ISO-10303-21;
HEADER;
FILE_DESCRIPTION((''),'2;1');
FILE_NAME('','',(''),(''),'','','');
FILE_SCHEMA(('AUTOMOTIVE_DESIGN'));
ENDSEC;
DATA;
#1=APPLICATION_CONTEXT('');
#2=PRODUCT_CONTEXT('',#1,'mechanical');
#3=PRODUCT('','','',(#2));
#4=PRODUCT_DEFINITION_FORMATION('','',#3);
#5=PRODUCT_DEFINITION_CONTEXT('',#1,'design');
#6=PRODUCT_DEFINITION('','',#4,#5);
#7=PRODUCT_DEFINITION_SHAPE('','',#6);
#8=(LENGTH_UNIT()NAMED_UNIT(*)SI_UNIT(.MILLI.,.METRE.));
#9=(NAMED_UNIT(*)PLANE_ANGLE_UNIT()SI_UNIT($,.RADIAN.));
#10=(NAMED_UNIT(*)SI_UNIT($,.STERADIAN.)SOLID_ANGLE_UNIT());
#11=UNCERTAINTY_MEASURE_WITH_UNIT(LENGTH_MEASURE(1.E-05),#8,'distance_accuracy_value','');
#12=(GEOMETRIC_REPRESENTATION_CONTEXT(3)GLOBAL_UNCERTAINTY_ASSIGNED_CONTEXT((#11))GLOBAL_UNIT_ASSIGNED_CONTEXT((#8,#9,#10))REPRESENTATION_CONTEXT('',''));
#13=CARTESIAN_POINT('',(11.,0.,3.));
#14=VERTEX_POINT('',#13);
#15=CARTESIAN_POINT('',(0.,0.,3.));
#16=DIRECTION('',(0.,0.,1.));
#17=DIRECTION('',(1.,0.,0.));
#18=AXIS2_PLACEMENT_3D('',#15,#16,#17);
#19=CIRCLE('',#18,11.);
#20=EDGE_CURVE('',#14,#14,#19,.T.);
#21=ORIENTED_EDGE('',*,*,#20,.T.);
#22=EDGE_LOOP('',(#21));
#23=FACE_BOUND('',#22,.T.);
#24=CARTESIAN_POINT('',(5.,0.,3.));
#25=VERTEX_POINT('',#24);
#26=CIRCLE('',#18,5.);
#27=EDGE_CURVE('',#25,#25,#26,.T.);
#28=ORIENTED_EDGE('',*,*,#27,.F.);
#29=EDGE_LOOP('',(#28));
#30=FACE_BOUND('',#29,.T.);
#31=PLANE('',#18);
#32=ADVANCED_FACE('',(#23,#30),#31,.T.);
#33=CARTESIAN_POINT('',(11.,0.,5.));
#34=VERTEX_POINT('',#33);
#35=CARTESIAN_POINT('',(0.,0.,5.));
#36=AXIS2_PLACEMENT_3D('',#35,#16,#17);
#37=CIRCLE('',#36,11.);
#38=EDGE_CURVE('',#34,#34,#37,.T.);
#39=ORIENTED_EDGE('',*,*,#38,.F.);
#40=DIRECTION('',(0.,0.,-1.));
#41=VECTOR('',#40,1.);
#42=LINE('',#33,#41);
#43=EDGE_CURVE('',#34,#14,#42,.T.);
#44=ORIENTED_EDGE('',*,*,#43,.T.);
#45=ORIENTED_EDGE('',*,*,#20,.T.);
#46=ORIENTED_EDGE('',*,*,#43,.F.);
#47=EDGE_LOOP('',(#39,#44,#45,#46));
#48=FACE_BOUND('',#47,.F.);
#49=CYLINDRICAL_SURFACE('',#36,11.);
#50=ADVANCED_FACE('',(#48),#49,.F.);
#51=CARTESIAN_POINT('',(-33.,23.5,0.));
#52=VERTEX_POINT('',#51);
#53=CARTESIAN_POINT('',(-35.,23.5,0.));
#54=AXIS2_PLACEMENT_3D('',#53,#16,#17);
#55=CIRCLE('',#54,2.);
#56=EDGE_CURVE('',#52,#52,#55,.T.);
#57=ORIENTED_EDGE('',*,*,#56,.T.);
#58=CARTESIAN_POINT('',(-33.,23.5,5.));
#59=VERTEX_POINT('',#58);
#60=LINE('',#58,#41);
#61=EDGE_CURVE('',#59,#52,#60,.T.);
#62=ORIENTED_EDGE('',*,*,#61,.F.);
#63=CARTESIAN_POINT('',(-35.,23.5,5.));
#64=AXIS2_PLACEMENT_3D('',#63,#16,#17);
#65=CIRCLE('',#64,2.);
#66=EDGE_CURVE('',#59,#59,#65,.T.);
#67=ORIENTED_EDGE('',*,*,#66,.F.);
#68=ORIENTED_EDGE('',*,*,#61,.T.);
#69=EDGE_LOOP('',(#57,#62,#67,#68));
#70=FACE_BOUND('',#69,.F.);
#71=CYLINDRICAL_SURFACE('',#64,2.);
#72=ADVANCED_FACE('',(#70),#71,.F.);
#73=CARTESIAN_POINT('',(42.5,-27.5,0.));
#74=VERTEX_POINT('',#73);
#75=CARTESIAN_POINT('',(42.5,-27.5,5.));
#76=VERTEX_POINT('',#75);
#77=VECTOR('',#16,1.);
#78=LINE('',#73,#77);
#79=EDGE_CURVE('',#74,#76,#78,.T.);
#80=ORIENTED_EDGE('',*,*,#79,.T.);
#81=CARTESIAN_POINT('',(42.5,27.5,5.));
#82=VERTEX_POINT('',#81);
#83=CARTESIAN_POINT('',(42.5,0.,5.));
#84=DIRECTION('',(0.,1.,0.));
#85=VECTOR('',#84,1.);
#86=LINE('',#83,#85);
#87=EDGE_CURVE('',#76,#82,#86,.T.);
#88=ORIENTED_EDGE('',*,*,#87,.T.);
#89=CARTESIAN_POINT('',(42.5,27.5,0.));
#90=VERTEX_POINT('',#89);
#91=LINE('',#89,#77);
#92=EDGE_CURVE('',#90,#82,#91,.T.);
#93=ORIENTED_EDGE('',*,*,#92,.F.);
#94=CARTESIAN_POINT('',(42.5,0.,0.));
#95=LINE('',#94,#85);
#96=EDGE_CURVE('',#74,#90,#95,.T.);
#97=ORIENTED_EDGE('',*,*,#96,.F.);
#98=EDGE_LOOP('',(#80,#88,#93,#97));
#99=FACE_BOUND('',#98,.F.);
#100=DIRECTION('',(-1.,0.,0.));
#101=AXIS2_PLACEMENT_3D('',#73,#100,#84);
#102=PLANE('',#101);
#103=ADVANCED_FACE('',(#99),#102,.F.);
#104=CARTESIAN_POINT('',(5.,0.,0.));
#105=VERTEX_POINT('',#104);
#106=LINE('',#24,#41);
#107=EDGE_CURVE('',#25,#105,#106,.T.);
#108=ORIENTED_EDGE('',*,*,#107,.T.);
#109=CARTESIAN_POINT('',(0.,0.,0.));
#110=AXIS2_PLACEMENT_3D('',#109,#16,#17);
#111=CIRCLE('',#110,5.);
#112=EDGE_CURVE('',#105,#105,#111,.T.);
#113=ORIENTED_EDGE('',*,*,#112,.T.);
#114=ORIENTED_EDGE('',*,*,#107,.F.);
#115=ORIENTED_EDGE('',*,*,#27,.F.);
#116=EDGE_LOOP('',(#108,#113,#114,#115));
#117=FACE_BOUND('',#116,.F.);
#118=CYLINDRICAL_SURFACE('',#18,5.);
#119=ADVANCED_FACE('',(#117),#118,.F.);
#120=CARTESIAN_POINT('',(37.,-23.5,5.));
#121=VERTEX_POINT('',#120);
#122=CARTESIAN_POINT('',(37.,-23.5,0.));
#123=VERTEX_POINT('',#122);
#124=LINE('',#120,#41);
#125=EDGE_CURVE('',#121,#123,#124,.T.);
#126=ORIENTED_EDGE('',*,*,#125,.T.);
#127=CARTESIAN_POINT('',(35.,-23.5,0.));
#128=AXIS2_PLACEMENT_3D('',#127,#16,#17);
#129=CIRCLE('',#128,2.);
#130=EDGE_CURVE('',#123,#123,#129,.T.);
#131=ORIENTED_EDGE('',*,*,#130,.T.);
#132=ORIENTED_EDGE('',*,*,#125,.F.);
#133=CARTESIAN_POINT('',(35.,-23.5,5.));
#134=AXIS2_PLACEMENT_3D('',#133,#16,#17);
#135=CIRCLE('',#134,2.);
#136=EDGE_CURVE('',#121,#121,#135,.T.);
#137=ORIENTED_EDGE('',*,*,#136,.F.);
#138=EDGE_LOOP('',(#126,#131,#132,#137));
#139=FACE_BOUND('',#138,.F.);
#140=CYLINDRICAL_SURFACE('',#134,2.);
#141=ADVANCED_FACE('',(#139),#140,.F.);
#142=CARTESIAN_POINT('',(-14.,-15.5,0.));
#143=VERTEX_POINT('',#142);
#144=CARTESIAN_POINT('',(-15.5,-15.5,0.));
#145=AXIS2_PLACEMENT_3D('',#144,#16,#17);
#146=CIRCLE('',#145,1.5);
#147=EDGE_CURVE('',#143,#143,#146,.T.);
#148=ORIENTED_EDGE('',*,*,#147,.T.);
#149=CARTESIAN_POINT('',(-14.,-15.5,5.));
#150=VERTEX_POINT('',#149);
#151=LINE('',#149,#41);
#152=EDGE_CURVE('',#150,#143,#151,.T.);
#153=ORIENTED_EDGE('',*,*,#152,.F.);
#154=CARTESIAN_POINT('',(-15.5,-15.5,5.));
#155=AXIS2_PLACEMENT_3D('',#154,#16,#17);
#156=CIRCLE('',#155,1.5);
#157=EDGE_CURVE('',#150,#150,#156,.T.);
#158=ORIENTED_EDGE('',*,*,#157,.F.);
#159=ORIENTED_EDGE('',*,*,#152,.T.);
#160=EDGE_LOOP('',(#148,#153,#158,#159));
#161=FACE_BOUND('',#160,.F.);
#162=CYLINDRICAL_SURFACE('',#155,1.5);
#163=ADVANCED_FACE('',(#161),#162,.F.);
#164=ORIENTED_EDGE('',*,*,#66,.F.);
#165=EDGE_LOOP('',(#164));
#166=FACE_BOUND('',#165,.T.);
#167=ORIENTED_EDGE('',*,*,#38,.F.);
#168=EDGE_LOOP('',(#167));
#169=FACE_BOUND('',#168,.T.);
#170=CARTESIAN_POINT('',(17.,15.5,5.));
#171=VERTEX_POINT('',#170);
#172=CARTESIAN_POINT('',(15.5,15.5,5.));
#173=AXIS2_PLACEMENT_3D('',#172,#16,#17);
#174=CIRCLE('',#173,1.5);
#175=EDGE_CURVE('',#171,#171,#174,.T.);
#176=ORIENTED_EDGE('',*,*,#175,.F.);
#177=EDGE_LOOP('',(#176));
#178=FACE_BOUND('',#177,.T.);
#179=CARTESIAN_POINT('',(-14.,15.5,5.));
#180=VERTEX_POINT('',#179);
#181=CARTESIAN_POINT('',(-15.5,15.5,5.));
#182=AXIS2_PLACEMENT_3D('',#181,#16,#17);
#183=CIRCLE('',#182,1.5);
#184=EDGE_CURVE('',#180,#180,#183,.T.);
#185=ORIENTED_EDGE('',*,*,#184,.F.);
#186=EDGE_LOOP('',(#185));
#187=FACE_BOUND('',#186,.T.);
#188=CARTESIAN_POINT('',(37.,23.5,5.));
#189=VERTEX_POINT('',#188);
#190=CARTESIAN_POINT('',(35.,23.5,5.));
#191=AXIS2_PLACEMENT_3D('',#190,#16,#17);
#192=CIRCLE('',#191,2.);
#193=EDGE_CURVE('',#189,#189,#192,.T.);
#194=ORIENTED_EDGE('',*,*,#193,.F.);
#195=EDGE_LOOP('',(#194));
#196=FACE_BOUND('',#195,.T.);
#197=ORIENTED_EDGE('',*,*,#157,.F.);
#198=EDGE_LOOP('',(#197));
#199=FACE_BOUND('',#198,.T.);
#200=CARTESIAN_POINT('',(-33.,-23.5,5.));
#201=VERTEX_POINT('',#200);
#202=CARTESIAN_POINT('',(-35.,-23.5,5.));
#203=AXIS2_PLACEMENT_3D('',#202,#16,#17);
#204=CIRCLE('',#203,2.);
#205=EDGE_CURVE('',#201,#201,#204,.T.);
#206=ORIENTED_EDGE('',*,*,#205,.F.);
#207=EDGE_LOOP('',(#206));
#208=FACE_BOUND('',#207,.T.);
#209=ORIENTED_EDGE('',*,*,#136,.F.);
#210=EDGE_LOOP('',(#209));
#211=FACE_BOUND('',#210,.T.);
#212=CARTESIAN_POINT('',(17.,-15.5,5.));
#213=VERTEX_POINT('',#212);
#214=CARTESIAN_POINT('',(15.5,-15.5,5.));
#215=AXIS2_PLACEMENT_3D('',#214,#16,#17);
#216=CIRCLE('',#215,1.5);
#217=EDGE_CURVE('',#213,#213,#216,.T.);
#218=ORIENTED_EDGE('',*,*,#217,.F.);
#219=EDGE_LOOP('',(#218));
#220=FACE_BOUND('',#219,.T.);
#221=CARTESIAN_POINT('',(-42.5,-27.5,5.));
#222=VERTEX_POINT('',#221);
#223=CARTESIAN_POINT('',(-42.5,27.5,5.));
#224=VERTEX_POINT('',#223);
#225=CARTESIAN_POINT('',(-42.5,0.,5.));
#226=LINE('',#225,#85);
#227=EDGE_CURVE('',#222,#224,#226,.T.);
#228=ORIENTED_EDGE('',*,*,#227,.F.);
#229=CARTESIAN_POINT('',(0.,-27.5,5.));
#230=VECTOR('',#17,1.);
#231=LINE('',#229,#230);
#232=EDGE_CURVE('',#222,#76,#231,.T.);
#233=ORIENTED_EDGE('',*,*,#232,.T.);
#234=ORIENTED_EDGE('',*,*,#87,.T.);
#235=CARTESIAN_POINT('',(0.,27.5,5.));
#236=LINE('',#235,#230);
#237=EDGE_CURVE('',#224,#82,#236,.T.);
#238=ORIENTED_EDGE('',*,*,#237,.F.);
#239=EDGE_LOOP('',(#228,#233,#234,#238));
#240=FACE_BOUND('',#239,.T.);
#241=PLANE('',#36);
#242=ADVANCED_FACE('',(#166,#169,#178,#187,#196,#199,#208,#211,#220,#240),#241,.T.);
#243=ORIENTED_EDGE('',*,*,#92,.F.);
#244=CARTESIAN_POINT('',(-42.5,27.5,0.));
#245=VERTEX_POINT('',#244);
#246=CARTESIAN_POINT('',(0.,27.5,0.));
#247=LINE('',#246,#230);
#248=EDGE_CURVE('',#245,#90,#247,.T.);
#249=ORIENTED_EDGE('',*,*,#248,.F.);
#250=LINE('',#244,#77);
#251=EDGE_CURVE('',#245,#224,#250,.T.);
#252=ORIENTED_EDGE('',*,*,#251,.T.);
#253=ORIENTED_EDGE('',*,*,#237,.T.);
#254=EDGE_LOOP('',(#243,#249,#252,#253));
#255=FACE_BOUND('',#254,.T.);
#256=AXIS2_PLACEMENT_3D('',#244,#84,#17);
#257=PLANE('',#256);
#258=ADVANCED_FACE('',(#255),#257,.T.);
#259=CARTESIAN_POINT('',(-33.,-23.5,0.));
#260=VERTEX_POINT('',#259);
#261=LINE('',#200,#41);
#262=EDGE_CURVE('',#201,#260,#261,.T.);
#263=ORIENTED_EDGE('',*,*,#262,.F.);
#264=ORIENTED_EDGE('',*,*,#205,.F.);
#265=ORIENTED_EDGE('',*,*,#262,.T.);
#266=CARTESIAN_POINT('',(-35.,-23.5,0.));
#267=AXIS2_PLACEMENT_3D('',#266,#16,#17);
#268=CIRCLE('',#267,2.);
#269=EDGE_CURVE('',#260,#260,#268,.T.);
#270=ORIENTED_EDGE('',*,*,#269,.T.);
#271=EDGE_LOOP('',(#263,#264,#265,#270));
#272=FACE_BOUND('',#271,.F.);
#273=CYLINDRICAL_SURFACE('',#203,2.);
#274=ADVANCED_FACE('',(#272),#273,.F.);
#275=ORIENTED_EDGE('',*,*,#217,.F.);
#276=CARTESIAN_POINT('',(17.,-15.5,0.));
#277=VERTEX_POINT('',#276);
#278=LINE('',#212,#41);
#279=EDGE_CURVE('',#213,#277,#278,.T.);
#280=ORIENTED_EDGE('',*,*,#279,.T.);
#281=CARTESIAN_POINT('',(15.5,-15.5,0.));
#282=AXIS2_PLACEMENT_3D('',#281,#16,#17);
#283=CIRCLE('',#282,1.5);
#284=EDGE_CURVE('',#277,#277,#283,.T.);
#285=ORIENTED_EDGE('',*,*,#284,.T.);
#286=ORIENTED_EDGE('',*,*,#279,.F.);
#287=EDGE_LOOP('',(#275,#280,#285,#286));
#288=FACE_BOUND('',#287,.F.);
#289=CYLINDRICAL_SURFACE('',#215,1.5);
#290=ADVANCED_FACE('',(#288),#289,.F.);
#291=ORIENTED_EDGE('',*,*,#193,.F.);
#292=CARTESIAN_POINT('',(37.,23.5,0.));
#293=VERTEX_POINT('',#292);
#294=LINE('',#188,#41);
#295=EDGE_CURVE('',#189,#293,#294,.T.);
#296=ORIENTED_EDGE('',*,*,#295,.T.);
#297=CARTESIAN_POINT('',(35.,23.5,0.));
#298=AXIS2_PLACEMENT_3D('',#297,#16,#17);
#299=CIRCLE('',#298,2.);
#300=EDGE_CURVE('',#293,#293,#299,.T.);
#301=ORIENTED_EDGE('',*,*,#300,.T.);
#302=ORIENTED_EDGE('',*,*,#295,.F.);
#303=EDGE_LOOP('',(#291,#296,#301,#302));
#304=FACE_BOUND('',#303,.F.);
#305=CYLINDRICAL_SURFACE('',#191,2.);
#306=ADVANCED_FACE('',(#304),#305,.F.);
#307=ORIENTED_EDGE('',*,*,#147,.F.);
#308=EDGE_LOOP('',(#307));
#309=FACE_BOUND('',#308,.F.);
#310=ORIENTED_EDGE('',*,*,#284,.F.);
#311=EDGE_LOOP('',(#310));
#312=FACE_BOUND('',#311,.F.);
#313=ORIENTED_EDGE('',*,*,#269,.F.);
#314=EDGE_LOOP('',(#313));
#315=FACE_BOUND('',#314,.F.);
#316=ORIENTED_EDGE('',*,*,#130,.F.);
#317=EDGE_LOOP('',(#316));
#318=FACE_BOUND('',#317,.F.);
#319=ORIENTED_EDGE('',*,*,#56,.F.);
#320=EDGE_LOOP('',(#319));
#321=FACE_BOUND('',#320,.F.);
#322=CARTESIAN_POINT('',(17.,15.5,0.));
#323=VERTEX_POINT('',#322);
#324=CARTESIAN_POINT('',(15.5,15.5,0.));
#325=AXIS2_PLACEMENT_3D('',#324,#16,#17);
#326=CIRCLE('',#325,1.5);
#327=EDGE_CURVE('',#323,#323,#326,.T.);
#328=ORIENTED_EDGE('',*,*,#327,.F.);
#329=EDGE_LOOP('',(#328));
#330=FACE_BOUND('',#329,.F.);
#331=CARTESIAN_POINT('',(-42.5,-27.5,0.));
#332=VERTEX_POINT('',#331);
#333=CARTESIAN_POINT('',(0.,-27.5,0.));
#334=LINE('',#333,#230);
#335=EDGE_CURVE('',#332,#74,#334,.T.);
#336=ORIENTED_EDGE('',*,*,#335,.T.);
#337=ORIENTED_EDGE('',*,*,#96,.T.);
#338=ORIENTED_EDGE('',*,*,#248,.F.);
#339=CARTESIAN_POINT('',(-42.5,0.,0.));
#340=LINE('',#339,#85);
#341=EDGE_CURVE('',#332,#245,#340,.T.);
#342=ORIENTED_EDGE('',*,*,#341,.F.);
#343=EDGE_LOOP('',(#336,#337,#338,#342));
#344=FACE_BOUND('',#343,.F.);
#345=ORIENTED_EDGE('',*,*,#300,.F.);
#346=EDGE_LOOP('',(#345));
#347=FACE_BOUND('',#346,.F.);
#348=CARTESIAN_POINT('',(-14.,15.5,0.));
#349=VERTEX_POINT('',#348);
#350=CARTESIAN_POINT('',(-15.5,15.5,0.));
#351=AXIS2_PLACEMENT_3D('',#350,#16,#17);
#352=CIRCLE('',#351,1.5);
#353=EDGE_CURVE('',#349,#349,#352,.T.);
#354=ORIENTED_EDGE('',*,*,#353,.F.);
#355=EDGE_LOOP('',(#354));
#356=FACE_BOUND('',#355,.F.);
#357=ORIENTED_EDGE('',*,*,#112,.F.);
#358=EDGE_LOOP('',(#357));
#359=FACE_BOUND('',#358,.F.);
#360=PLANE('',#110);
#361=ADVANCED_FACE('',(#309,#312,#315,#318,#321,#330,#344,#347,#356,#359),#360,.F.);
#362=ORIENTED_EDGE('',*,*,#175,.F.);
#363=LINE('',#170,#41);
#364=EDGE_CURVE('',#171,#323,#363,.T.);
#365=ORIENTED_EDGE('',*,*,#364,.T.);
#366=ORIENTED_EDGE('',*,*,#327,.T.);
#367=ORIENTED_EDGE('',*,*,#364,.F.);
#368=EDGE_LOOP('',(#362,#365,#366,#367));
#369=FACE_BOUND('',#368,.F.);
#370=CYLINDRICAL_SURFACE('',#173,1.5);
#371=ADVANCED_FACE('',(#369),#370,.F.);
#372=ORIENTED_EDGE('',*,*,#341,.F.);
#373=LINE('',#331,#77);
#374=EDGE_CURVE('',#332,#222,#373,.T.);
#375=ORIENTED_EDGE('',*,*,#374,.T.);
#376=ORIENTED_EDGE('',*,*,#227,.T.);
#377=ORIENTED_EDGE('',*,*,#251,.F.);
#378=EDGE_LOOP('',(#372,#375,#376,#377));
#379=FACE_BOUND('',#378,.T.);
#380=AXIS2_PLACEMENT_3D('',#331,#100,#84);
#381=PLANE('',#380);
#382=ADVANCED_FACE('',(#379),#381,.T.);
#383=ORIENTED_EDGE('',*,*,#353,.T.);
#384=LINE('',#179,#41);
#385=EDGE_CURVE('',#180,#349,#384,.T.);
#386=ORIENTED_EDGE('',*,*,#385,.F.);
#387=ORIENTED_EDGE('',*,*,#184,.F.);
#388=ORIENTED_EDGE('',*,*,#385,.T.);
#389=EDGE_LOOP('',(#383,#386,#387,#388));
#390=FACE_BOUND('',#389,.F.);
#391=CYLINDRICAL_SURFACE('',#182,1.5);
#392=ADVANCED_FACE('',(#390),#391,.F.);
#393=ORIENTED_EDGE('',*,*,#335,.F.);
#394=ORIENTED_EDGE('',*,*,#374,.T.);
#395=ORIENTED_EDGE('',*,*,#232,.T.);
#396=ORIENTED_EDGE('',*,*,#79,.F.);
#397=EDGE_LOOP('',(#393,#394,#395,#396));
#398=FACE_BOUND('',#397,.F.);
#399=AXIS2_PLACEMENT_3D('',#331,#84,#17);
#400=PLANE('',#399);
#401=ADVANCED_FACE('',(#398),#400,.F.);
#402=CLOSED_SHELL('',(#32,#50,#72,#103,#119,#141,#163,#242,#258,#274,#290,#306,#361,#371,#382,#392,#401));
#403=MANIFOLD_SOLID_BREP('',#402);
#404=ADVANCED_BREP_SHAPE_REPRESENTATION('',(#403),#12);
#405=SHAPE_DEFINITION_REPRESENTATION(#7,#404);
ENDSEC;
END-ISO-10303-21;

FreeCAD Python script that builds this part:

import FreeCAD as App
import Part
import Sketcher

V = App.Vector
Q = App.Units.Quantity

doc = App.newDocument("Part")
body = doc.addObject("PartDesign::Body", "Body")

# Sketch on XY plane
sketch1 = body.newObject("Sketcher::SketchObject", "Sketch")
sketch1.AttachmentSupport = (doc.getObject("XY_Plane"), [""])
sketch1.MapMode = "FlatFace"
sketch1.addGeometry(Part.LineSegment(V(-42, 28, 0), V(-42, -28, 0)), False)
sketch1.addGeometry(Part.LineSegment(V(-42, -28, 0), V(42, -28, 0)), False)
sketch1.addGeometry(Part.LineSegment(V(42, -28, 0), V(42, 28, 0)), False)
sketch1.addGeometry(Part.LineSegment(V(42, 28, 0), V(-42, 28, 0)), False)
sketch1.addConstraint(Sketcher.Constraint("Coincident", 0, 2, 1, 1))
sketch1.addConstraint(Sketcher.Constraint("Coincident", 1, 2, 2, 1))
sketch1.addConstraint(Sketcher.Constraint("Coincident", 2, 2, 3, 1))
sketch1.addConstraint(Sketcher.Constraint("Coincident", 3, 2, 0, 1))
sketch1.addConstraint(Sketcher.Constraint("Vertical", 0))
sketch1.addConstraint(Sketcher.Constraint("Horizontal", 1))
sketch1.addConstraint(Sketcher.Constraint("Vertical", 2))
sketch1.addConstraint(Sketcher.Constraint("Horizontal", 3))
sketch1.addConstraint(Sketcher.Constraint("Symmetric", 0, 2, 2, 2, -1, 1))
sketch1.addConstraint(Sketcher.Constraint("DistanceX", 1, 1, 1, 2, Q("85 mm")))
sketch1.addConstraint(Sketcher.Constraint("DistanceY", 0, 2, 0, 1, Q("55 mm")))
pad1 = body.newObject("PartDesign::Pad", "Pad")
pad1.Profile = sketch1
pad1.Length = 5

# Sketch on XY plane
sketch2 = body.newObject("Sketcher::SketchObject", "Sketch001")
sketch2.AttachmentSupport = (doc.getObject("XY_Plane"), [""])
sketch2.MapMode = "FlatFace"
sketch2.AttachmentOffset = App.Placement(V(0, 0, 5), App.Rotation())
sketch2.addGeometry(Part.Circle(V(0, 0, 0), V(0, 0, 1), 11), False)
sketch2.addConstraint(Sketcher.Constraint("Coincident", 0, 3, -1, 1))
sketch2.addConstraint(Sketcher.Constraint("Diameter", 0, Q("22 mm")))
pocket1 = body.newObject("PartDesign::Pocket", "Pocket")
pocket1.Profile = sketch2
pocket1.Length = 2

# Sketch on XY plane
sketch3 = body.newObject("Sketcher::SketchObject", "Sketch002")
sketch3.AttachmentSupport = (doc.getObject("XY_Plane"), [""])
sketch3.MapMode = "FlatFace"
sketch3.AttachmentOffset = App.Placement(V(0, 0, 3), App.Rotation())
sketch3.addGeometry(Part.Circle(V(0, 0, 0), V(0, 0, 1), 5), False)
sketch3.addConstraint(Sketcher.Constraint("Coincident", 0, 3, -1, 1))
sketch3.addConstraint(Sketcher.Constraint("Diameter", 0, Q("10 mm")))
pocket2 = body.newObject("PartDesign::Pocket", "Pocket001")
pocket2.Profile = sketch3
pocket2.Type = "ThroughAll"

# Sketch on XY plane
sketch4 = body.newObject("Sketcher::SketchObject", "Sketch003")
sketch4.AttachmentSupport = (doc.getObject("XY_Plane"), [""])
sketch4.MapMode = "FlatFace"
sketch4.AttachmentOffset = App.Placement(V(0, 0, 5), App.Rotation())
sketch4.addGeometry(Part.Circle(V(-15.5, 15.5, 0), V(0, 0, 1), 1.5), False)
sketch4.addGeometry(Part.Circle(V(15.5, 15.5, 0), V(0, 0, 1), 1.5), False)
sketch4.addGeometry(Part.Circle(V(15.5, -15.5, 0), V(0, 0, 1), 1.5), False)
sketch4.addGeometry(Part.Circle(V(-15.5, -15.5, 0), V(0, 0, 1), 1.5), False)
sketch4.addConstraint(Sketcher.Constraint("Equal", 0, 1))
sketch4.addConstraint(Sketcher.Constraint("Equal", 1, 2))
sketch4.addConstraint(Sketcher.Constraint("Equal", 2, 3))
sketch4.addConstraint(Sketcher.Constraint("Symmetric", 0, 3, 2, 3, -1, 1))
sketch4.addConstraint(Sketcher.Constraint("Symmetric", 1, 3, 3, 3, -1, 1))
sketch4.addConstraint(Sketcher.Constraint("Symmetric", 0, 3, 1, 3, -2))
sketch4.addConstraint(Sketcher.Constraint("Diameter", 0, Q("3 mm")))
sketch4.addConstraint(Sketcher.Constraint("DistanceX", 0, 3, 1, 3, Q("31 mm")))
sketch4.addConstraint(Sketcher.Constraint("DistanceY", 2, 3, 1, 3, Q("31 mm")))
pocket3 = body.newObject("PartDesign::Pocket", "Pocket002")
pocket3.Profile = sketch4
pocket3.Type = "ThroughAll"

# Sketch on XY plane
sketch5 = body.newObject("Sketcher::SketchObject", "Sketch004")
sketch5.AttachmentSupport = (doc.getObject("XY_Plane"), [""])
sketch5.MapMode = "FlatFace"
sketch5.AttachmentOffset = App.Placement(V(0, 0, 5), App.Rotation())
sketch5.addGeometry(Part.Circle(V(-35, -23.5, 0), V(0, 0, 1), 2), False)
sketch5.addGeometry(Part.Circle(V(-35, 23.5, 0), V(0, 0, 1), 2), False)
sketch5.addGeometry(Part.Circle(V(35, 23.5, 0), V(0, 0, 1), 2), False)
sketch5.addGeometry(Part.Circle(V(35, -23.5, 0), V(0, 0, 1), 2), False)
sketch5.addConstraint(Sketcher.Constraint("Equal", 0, 1))
sketch5.addConstraint(Sketcher.Constraint("Equal", 1, 2))
sketch5.addConstraint(Sketcher.Constraint("Equal", 2, 3))
sketch5.addConstraint(Sketcher.Constraint("Symmetric", 0, 3, 2, 3, -1, 1))
sketch5.addConstraint(Sketcher.Constraint("Symmetric", 1, 3, 3, 3, -1, 1))
sketch5.addConstraint(Sketcher.Constraint("Symmetric", 1, 3, 2, 3, -2))
sketch5.addConstraint(Sketcher.Constraint("Diameter", 0, Q("4 mm")))
sketch5.addConstraint(Sketcher.Constraint("DistanceX", 0, 3, -1, 1, Q("35 mm")))
sketch5.addConstraint(Sketcher.Constraint("DistanceY", 0, 3, 1, 3, Q("47 mm")))
pocket4 = body.newObject("PartDesign::Pocket", "Pocket003")
pocket4.Profile = sketch5
pocket4.Type = "ThroughAll"

doc.recompute()
